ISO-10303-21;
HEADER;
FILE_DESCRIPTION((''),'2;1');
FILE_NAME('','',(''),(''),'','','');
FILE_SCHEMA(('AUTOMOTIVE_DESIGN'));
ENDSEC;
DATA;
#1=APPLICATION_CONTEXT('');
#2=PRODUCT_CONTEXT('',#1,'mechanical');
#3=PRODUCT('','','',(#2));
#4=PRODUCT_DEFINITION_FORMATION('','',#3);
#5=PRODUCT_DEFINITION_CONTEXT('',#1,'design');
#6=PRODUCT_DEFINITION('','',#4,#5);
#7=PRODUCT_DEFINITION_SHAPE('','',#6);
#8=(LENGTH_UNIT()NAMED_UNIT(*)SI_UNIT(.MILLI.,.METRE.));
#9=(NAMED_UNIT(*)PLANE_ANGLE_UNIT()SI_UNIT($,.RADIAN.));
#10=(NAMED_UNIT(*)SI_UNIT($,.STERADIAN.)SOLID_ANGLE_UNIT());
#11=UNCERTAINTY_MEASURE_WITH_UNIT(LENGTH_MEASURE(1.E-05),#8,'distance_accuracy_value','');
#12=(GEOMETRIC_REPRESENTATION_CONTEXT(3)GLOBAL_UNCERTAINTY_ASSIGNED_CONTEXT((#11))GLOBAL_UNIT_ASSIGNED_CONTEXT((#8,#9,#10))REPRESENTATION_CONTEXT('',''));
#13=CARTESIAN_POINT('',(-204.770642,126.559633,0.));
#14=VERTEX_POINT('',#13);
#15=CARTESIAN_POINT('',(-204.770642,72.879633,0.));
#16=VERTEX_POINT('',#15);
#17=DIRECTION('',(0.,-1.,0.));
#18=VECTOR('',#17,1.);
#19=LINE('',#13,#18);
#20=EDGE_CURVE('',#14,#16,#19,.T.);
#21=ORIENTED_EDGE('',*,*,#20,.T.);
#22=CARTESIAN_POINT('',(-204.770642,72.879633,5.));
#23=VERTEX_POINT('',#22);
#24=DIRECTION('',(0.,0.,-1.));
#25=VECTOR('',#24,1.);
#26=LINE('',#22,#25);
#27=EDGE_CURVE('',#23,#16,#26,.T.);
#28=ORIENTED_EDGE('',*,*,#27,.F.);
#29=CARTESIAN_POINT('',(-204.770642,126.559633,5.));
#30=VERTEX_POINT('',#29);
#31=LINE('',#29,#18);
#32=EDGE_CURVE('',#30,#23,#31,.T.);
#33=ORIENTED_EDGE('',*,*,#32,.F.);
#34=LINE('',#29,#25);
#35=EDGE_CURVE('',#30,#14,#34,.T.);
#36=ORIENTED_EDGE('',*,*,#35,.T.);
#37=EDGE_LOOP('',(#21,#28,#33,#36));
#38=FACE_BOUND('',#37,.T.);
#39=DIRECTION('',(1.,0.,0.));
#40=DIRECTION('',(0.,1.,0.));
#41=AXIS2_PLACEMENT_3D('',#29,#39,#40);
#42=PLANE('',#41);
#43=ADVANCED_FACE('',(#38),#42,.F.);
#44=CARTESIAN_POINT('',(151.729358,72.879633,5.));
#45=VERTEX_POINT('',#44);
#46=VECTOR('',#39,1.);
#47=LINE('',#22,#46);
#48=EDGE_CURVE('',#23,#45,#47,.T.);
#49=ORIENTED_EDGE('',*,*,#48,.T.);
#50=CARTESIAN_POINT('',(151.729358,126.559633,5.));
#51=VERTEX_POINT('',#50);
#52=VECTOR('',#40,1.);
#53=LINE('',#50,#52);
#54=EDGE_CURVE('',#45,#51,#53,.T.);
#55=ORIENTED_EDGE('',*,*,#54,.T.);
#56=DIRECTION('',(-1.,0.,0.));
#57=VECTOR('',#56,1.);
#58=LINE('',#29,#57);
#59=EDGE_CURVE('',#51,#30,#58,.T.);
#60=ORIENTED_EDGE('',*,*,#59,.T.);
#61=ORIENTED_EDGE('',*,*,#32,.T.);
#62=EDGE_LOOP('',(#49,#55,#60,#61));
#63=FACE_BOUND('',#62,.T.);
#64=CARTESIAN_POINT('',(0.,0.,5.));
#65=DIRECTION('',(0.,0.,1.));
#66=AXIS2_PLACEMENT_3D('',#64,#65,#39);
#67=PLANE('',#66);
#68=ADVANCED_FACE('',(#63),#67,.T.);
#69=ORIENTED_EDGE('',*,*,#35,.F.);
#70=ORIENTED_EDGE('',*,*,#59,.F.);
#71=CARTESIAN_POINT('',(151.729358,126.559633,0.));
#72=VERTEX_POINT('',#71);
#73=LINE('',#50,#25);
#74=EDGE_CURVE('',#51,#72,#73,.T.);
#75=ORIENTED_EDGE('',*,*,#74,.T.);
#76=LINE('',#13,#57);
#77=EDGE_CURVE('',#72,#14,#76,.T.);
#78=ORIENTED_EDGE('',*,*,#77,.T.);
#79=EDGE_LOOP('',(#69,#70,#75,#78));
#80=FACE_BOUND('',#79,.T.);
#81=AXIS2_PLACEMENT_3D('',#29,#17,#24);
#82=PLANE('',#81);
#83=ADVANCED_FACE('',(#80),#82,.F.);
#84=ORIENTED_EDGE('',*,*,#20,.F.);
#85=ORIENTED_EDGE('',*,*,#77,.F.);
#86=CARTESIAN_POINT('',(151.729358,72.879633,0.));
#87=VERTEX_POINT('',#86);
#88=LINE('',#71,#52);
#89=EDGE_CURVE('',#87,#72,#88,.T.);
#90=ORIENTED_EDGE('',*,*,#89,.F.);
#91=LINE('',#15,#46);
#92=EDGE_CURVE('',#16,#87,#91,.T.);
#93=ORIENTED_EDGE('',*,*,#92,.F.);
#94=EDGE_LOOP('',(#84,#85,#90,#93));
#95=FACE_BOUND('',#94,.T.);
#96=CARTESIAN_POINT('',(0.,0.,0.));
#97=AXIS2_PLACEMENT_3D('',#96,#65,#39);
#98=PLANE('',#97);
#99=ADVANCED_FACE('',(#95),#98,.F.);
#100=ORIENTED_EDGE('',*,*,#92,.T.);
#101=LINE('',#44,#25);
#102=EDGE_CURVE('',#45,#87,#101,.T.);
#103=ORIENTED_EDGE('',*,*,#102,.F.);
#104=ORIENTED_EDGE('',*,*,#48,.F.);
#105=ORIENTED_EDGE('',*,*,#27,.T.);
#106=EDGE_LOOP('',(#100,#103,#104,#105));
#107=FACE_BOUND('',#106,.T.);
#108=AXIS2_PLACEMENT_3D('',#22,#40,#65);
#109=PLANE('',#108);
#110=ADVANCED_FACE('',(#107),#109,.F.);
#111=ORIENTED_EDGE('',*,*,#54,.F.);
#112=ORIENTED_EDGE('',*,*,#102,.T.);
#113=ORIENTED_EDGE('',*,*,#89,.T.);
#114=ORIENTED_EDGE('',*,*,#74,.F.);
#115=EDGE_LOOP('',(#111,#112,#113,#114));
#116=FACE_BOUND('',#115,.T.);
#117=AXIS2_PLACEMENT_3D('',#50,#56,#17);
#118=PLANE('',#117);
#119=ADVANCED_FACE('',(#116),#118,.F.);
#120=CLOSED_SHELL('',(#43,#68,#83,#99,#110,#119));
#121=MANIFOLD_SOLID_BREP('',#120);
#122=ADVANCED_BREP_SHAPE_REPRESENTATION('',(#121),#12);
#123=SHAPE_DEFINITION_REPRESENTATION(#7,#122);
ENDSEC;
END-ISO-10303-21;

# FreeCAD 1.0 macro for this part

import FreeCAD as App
import Part
import Sketcher

V = App.Vector
Q = App.Units.Quantity


def add_polygon(sketch, points):
    """Adds a closed chain of lines whose ends are joined by coincident constraints."""
    first, n = sketch.GeometryCount, len(points)
    for a, b in zip(points, points[1:] + points[:1]):
        sketch.addGeometry(Part.LineSegment(App.Vector(*a, 0), App.Vector(*b, 0)), False)
    for i in range(n):
        sketch.addConstraint(Sketcher.Constraint("Coincident", first + i, 2, first + (i + 1) % n, 1))

doc = App.newDocument("Part")
body = doc.addObject("PartDesign::Body", "Body")

# Sketch on XY plane
sketch1 = body.newObject("Sketcher::SketchObject", "Sketch")
sketch1.AttachmentSupport = (doc.getObject("XY_Plane"), [""])
sketch1.MapMode = "FlatFace"
add_polygon(sketch1, [(-204.770642, 126.559633), (-204.770642, 72.879633), (151.729358, 72.879633), (151.729358, 126.559633)])  # lines 0-3
sketch1.addConstraint([
    Sketcher.Constraint("Vertical", 0),
    Sketcher.Constraint("Horizontal", 1),
    Sketcher.Constraint("Vertical", 2),
    Sketcher.Constraint("Horizontal", 3),
    Sketcher.Constraint("DistanceX", 1, 1, 1, 2, Q("356.5 mm")),
    Sketcher.Constraint("DistanceY", 0, 2, 0, 1, Q("53.68 mm")),
    Sketcher.Constraint("DistanceX", 0, 2, -1, 1, Q("204.770642 mm")),
    Sketcher.Constraint("DistanceY", -1, 1, 0, 2, Q("72.879633 mm")),
])
pad1 = body.newObject("PartDesign::Pad", "Pad")
pad1.Profile = sketch1
pad1.Length = 5

doc.recompute()
